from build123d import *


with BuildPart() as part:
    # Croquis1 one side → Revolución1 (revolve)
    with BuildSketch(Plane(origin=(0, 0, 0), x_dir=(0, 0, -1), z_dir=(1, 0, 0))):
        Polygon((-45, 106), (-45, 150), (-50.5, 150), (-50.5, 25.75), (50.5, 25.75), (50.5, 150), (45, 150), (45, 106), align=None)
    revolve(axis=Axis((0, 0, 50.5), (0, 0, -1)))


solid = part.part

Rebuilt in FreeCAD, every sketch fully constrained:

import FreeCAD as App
import Part
import Sketcher
Q = App.Units.Quantity

doc = App.newDocument("Part")
body = doc.addObject("PartDesign::Body", "Body")

sketch1 = doc.addObject("Sketcher::SketchObject", "Sketch")
body.addObject(sketch1)
sketch1.AttachmentSupport = (doc.YZ_Plane, [""])
sketch1.MapMode = "FlatFace"
sketch1.addGeometry([
    Part.LineSegment(App.Vector(106, 45, 0), App.Vector(150, 45, 0)),
    Part.LineSegment(App.Vector(150, 45, 0), App.Vector(150, 50.5, 0)),
    Part.LineSegment(App.Vector(150, 50.5, 0), App.Vector(25.75, 50.5, 0)),
    Part.LineSegment(App.Vector(25.75, 50.5, 0), App.Vector(25.75, -50.5, 0)),
    Part.LineSegment(App.Vector(25.75, -50.5, 0), App.Vector(150, -50.5, 0)),
    Part.LineSegment(App.Vector(150, -50.5, 0), App.Vector(150, -45, 0)),
    Part.LineSegment(App.Vector(150, -45, 0), App.Vector(106, -45, 0)),
    Part.LineSegment(App.Vector(106, -45, 0), App.Vector(106, 45, 0)),
], False)
sketch1.addConstraint([
    Sketcher.Constraint("Coincident", 0, 2, 1, 1),
    Sketcher.Constraint("Coincident", 1, 2, 2, 1),
    Sketcher.Constraint("Coincident", 2, 2, 3, 1),
    Sketcher.Constraint("Coincident", 3, 2, 4, 1),
    Sketcher.Constraint("Coincident", 4, 2, 5, 1),
    Sketcher.Constraint("Coincident", 5, 2, 6, 1),
    Sketcher.Constraint("Coincident", 6, 2, 7, 1),
    Sketcher.Constraint("Coincident", 7, 2, 0, 1),
    Sketcher.Constraint("Horizontal", 0),
    Sketcher.Constraint("Vertical", 1),
    Sketcher.Constraint("Horizontal", 2),
    Sketcher.Constraint("Vertical", 3),
    Sketcher.Constraint("Horizontal", 4),
    Sketcher.Constraint("Vertical", 5),
    Sketcher.Constraint("Horizontal", 6),
    Sketcher.Constraint("Vertical", 7),
    Sketcher.Constraint("Symmetric", 1, 2, 4, 2, -1),
    Sketcher.Constraint("Equal", 1, 5),
    Sketcher.Constraint("DistanceX", 0, 1, 0, 2, Q("44 mm")),
    Sketcher.Constraint("DistanceY", 3, 2, 3, 1, Q("101 mm")),
    Sketcher.Constraint("DistanceY", 7, 1, 7, 2, Q("90 mm")),
    Sketcher.Constraint("DistanceX", -1, 1, 0, 2, Q("150 mm")),
    Sketcher.Constraint("DistanceX", 2, 2, 2, 1, Q("124.25 mm")),
])
revolution = doc.addObject("PartDesign::Revolution", "Revolution")
body.addObject(revolution)
revolution.Profile = sketch1
revolution.ReferenceAxis = (sketch1, ["V_Axis"])
revolution.Angle = 360

doc.recompute()
